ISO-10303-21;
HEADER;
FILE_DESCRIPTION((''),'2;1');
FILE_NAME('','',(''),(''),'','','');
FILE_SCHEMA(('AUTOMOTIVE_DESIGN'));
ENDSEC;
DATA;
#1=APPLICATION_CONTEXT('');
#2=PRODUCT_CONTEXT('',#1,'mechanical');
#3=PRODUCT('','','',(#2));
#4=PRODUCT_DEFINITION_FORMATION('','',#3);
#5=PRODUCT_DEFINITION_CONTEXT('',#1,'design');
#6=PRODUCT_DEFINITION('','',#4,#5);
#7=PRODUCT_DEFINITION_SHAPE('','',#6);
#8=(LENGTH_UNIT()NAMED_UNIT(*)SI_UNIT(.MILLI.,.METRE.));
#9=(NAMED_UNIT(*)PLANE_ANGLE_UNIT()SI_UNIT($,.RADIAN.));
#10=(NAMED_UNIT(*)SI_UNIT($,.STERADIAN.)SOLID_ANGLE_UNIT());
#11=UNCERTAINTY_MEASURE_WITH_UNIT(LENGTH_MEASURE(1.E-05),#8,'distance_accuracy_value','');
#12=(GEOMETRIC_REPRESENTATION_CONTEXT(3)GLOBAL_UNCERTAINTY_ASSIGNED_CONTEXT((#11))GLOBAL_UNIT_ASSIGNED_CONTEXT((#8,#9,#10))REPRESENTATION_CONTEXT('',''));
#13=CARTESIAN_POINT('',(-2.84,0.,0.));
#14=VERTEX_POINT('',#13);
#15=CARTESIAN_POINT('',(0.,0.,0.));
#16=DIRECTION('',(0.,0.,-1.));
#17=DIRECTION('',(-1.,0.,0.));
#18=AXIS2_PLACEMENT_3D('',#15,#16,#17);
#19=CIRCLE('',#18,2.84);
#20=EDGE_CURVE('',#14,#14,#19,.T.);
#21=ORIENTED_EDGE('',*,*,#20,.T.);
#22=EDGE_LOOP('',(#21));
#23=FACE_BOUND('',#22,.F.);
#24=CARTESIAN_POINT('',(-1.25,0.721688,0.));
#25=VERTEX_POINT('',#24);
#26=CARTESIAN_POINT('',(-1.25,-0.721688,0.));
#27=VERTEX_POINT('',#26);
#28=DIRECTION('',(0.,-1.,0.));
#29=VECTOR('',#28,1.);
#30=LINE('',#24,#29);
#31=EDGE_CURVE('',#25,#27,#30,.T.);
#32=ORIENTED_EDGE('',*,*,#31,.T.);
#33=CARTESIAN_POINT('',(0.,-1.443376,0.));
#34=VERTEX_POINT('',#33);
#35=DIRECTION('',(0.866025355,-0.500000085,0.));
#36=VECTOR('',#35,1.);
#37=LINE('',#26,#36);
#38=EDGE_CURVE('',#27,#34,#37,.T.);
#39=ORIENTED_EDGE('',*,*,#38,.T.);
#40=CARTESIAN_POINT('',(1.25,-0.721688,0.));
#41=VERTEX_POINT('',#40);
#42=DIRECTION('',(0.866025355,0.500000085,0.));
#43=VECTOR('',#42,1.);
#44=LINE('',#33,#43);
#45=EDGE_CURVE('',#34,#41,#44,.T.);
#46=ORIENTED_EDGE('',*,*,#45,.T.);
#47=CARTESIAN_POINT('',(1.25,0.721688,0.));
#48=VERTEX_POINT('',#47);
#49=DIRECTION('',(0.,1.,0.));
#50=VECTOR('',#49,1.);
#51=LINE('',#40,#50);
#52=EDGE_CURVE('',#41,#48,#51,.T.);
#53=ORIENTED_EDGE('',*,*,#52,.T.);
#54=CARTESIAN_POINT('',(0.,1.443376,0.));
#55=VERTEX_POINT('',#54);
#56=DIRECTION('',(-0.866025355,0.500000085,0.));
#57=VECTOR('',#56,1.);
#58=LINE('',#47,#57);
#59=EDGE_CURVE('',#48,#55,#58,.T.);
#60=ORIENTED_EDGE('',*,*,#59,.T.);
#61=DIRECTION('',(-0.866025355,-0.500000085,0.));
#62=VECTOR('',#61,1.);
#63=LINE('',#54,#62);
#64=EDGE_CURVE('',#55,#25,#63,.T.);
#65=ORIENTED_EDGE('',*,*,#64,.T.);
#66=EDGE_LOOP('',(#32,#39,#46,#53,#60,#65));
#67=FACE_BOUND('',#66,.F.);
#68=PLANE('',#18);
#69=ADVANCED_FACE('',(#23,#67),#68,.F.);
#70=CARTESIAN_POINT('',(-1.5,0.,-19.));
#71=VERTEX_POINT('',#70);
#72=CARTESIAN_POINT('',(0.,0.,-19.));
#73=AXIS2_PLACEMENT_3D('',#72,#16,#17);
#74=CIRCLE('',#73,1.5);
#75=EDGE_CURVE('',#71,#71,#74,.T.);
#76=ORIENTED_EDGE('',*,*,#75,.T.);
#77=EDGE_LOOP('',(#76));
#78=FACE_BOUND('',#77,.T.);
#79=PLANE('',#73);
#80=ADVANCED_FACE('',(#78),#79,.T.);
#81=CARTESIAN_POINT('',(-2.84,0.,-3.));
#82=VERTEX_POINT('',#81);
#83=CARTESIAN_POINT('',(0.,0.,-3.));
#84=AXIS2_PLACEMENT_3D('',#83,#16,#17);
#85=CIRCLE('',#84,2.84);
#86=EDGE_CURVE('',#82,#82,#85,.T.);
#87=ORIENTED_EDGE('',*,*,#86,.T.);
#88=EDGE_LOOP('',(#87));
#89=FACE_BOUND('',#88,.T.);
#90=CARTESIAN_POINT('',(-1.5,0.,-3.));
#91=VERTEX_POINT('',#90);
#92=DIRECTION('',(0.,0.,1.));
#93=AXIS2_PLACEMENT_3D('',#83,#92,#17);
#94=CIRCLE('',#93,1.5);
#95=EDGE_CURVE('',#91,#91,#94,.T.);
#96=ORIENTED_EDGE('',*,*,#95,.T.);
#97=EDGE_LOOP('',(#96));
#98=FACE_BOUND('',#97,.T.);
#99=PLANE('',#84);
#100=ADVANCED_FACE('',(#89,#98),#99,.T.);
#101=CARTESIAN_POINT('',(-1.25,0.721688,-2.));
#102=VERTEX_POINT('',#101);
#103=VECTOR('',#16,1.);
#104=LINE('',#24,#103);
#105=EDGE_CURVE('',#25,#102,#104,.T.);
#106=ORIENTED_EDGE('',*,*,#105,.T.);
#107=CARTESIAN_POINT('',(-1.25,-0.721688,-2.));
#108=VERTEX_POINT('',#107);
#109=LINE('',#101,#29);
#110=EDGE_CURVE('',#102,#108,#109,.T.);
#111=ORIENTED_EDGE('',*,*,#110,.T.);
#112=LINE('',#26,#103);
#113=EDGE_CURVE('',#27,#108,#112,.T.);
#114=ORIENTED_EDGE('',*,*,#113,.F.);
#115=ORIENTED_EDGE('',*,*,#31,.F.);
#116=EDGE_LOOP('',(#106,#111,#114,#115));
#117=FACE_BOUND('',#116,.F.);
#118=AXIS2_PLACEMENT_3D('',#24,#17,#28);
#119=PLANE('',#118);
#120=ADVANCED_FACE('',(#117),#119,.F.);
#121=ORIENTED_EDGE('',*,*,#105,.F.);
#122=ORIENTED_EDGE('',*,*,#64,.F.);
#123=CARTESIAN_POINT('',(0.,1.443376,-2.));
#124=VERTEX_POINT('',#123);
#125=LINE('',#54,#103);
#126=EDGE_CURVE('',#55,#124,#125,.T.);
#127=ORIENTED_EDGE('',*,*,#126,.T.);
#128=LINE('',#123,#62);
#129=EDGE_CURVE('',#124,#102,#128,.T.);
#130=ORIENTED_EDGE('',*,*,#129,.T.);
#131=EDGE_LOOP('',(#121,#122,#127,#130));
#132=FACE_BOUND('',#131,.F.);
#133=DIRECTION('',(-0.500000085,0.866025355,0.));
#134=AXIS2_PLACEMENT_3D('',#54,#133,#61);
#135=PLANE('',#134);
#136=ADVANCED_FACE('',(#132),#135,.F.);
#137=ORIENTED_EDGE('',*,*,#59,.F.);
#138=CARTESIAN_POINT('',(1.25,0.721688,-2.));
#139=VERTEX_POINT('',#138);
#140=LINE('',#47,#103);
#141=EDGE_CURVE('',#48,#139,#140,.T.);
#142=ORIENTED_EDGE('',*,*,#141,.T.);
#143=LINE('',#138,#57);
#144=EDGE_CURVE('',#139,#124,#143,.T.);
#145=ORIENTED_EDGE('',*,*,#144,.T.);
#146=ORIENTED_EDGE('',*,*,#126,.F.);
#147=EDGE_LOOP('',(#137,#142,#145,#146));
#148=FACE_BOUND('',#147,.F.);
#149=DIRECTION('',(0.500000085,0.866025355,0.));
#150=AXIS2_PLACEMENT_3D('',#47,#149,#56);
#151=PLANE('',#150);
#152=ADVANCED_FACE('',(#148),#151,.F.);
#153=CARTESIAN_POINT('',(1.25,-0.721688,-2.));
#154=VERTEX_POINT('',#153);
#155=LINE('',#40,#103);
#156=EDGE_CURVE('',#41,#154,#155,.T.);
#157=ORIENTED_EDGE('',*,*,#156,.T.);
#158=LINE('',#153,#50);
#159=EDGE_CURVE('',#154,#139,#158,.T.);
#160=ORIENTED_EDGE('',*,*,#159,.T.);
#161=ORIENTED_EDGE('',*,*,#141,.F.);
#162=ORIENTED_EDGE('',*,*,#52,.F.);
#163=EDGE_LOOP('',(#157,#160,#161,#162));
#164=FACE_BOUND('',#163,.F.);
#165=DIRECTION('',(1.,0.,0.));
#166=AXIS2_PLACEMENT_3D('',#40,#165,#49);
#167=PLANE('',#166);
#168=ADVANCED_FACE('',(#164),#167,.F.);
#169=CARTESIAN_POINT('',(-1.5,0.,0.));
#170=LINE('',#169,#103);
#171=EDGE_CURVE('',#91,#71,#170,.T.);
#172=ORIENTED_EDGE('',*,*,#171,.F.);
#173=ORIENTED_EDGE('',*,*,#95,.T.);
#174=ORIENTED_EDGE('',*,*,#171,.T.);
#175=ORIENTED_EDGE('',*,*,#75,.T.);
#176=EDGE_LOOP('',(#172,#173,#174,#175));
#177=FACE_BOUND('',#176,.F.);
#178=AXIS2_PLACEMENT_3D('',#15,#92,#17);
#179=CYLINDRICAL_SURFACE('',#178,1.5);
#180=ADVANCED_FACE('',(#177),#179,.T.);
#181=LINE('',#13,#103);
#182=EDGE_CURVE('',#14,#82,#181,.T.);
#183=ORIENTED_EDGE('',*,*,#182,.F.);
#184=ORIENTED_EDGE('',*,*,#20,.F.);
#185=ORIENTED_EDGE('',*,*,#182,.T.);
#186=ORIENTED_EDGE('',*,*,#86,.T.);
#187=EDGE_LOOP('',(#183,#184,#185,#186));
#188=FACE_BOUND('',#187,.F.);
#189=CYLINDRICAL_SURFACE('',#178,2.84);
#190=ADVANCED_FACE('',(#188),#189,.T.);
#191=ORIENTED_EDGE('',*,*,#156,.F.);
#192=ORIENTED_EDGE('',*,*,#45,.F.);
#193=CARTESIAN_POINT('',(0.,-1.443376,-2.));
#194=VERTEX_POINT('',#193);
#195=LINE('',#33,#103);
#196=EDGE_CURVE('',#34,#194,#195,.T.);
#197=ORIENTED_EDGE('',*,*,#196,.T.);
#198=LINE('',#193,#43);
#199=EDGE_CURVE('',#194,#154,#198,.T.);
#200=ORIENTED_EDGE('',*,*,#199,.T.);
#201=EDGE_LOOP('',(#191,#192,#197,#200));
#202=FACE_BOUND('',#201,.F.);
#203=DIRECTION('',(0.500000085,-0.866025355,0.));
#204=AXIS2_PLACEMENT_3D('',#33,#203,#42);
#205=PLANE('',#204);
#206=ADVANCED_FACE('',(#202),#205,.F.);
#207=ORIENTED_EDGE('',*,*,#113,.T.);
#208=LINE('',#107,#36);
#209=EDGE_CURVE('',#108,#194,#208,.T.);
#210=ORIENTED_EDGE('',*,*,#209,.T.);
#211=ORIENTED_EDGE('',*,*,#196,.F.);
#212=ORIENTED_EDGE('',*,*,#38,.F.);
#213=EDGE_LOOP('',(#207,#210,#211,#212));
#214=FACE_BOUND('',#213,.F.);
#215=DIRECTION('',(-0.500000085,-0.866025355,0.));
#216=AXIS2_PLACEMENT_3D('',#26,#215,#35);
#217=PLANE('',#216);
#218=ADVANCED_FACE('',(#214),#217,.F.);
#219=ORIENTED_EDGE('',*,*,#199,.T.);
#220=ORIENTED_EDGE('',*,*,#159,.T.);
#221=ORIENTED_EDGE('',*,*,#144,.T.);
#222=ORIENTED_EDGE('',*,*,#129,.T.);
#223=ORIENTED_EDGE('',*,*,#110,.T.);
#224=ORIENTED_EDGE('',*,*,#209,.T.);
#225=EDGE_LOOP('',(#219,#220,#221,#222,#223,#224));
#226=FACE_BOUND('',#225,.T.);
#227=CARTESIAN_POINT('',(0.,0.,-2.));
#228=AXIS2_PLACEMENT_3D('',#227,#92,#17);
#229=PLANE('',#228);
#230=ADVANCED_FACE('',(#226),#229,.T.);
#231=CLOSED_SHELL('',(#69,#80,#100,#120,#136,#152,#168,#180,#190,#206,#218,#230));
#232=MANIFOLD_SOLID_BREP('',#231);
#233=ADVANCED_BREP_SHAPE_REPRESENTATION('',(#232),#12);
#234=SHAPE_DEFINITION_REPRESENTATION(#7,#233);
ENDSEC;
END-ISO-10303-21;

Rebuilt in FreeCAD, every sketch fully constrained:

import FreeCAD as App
import Part
import Sketcher
Q = App.Units.Quantity


def add_polygon(sketch, points):
    """Adds a closed chain of lines whose ends are joined by coincident constraints."""
    first, n = sketch.GeometryCount, len(points)
    for a, b in zip(points, points[1:] + points[:1]):
        sketch.addGeometry(Part.LineSegment(App.Vector(*a, 0), App.Vector(*b, 0)), False)
    for i in range(n):
        sketch.addConstraint(Sketcher.Constraint("Coincident", first + i, 2, first + (i + 1) % n, 1))

doc = App.newDocument("Part")
body = doc.addObject("PartDesign::Body", "Body")

sketch1 = body.newObject("Sketcher::SketchObject", "Sketch")
sketch1.AttachmentSupport = (doc.getObject("XY_Plane"), [""])
sketch1.MapMode = "FlatFace"
sketch1.addGeometry(Part.Circle(App.Vector(0, 0, 0), App.Vector(0, 0, 1), 1.5), False)
sketch1.addConstraint(Sketcher.Constraint("Coincident", 0, 3, -1, 1))
sketch1.addConstraint(Sketcher.Constraint("Diameter", 0, 3.0))
pad1 = body.newObject("PartDesign::Pad", "Pad")
pad1.Profile = sketch1
pad1.Length = 19
body2 = doc.addObject("PartDesign::Body", "Body001")

sketch2 = body2.newObject("Sketcher::SketchObject", "Sketch001")
sketch2.AttachmentSupport = (doc.getObject("XY_Plane001"), [""])
sketch2.MapMode = "FlatFace"
sketch2.addGeometry(Part.Circle(App.Vector(0, 0, 0), App.Vector(0, 0, 1), 2.8), False)
sketch2.addConstraint(Sketcher.Constraint("Coincident", 0, 3, -1, 1))
sketch2.addConstraint(Sketcher.Constraint("Diameter", 0, 5.68))
pad2 = body2.newObject("PartDesign::Pad", "Pad001")
pad2.Profile = sketch2
pad2.Length = 3
doc.recompute()

boolean = body2.newObject("PartDesign::Boolean", "Boolean")
boolean.Type = "Fuse"
boolean.addObjects([body])
body3 = doc.addObject("PartDesign::Body", "Body002")
doc.recompute()

body2.Placement = App.Placement(App.Vector(0, 0, 0), App.Rotation(App.Vector(0, 1, 0), 180))
boolean2 = body3.newObject("PartDesign::Boolean", "Boolean001")
boolean2.Type = "Fuse"
boolean2.addObjects([body2])

sketch3 = body3.newObject("Sketcher::SketchObject", "Sketch002")
sketch3.AttachmentSupport = (doc.getObject("XY_Plane002"), [""])
sketch3.MapMode = "FlatFace"
add_polygon(sketch3, [(-1.2, 0.7), (-1.2, -0.7), (0, -1.4), (1.2, -0.7), (1.2, 0.7), (0, 1.4)])
sketch3.addConstraint(Sketcher.Constraint("Vertical", 0))
sketch3.addConstraint(Sketcher.Constraint("Vertical", 3))
sketch3.addConstraint(Sketcher.Constraint("Symmetric", 0, 2, 3, 2, -1, 1))
sketch3.addConstraint(Sketcher.Constraint("Symmetric", 1, 2, 4, 2, -1, 1))
sketch3.addConstraint(Sketcher.Constraint("PointOnObject", 1, 2, -2))
sketch3.addConstraint(Sketcher.Constraint("Parallel", 2, 5))
sketch3.addConstraint(Sketcher.Constraint("Horizontal", 0, 2, 2, 2))
sketch3.addConstraint(Sketcher.Constraint("Angle", 1, Q("-30.000006 deg")))
sketch3.addConstraint(Sketcher.Constraint("DistanceX", 0, 2, 2, 2, 2.5))
sketch3.addConstraint(Sketcher.Constraint("DistanceY", 0, 2, 0, 1, 1.443376))
pocket1 = body3.newObject("PartDesign::Pocket", "Pocket")
pocket1.Profile = sketch3
pocket1.Length = 2

doc.recompute()
